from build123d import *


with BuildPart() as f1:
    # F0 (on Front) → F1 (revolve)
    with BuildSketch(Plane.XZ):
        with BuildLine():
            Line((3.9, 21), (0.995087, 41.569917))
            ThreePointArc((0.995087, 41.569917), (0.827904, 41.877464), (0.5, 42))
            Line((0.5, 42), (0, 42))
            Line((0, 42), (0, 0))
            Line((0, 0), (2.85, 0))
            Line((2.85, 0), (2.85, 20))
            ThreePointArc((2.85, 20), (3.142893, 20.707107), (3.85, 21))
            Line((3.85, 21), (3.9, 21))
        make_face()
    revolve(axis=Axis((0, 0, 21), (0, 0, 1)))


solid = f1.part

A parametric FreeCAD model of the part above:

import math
import FreeCAD as App
import Part
import Sketcher
from FreeCAD import Vector
Q = App.Units.Quantity

doc = App.newDocument("Part")
body = doc.addObject("PartDesign::Body", "Body")

# Sketch on XZ plane
sketch1 = body.newObject("Sketcher::SketchObject", "Sketch")
sketch1.AttachmentSupport = (doc.getObject("XZ_Plane"), [""])
sketch1.MapMode = "FlatFace"
sketch1.addGeometry([
    Part.LineSegment(Vector(3.9, 21, 0), Vector(0.995087, 41.569917, 0)),  # 0
    Part.ArcOfCircle(Part.Circle(Vector(0.500001, 41.500001, 0), Vector(0, 0, 1), 0.499999), math.radians(8.038112), math.radians(90.000074)),  # 1
    Part.LineSegment(Vector(0.5, 42, 0), Vector(0, 42, 0)),  # 2
    Part.LineSegment(Vector(0, 42, 0), Vector(0, 0, 0)),  # 3
    Part.LineSegment(Vector(0, 0, 0), Vector(2.85, 0, 0)),  # 4
    Part.LineSegment(Vector(2.85, 0, 0), Vector(2.85, 20, 0)),  # 5
    Part.ArcOfCircle(Part.Circle(Vector(3.849999, 20.000001, 0), Vector(0, 0, 1), 0.999999), math.radians(89.999957), math.radians(180.000043)),  # 6
    Part.LineSegment(Vector(3.85, 21, 0), Vector(3.9, 21, 0)),  # 7
], False)
sketch1.addConstraint([
    Sketcher.Constraint("Coincident", 0, 2, 1, 1),
    Sketcher.Constraint("Tangent", 1, 2, 2, 1),
    Sketcher.Constraint("Coincident", 2, 2, 3, 1),
    Sketcher.Constraint("Coincident", 3, 2, 4, 1),
    Sketcher.Constraint("Coincident", 4, 2, 5, 1),
    Sketcher.Constraint("Tangent", 5, 2, 6, 2),
    Sketcher.Constraint("Tangent", 6, 1, 7, 1),
    Sketcher.Constraint("Coincident", 7, 2, 0, 1),
    Sketcher.Constraint("Horizontal", 2),
    Sketcher.Constraint("Vertical", 3),
    Sketcher.Constraint("Horizontal", 4),
    Sketcher.Constraint("Vertical", 5),
    Sketcher.Constraint("Horizontal", 7),
    Sketcher.Constraint("Coincident", 3, 2, -1, 1),
    Sketcher.Constraint("Radius", 6, Q("0.999999 mm")),
    Sketcher.Constraint("Radius", 1, Q("0.499999 mm")),
    Sketcher.Constraint("DistanceY", 3, 2, 3, 1, Q("42 mm")),
    Sketcher.Constraint("DistanceY", 5, 1, 5, 2, Q("20 mm")),
    Sketcher.Constraint("DistanceX", 2, 2, 2, 1, Q("0.5 mm")),
    Sketcher.Constraint("DistanceX", 4, 1, 4, 2, Q("2.85 mm")),
    Sketcher.Constraint("DistanceX", 7, 1, 7, 2, Q("0.05 mm")),
    Sketcher.Constraint("Distance", 0, Q("20.774022 mm")),
])
revolution = body.newObject("PartDesign::Revolution", "Revolution")
revolution.Profile = sketch1
revolution.ReferenceAxis = (sketch1, ["V_Axis"])
revolution.Angle = 360

doc.recompute()
